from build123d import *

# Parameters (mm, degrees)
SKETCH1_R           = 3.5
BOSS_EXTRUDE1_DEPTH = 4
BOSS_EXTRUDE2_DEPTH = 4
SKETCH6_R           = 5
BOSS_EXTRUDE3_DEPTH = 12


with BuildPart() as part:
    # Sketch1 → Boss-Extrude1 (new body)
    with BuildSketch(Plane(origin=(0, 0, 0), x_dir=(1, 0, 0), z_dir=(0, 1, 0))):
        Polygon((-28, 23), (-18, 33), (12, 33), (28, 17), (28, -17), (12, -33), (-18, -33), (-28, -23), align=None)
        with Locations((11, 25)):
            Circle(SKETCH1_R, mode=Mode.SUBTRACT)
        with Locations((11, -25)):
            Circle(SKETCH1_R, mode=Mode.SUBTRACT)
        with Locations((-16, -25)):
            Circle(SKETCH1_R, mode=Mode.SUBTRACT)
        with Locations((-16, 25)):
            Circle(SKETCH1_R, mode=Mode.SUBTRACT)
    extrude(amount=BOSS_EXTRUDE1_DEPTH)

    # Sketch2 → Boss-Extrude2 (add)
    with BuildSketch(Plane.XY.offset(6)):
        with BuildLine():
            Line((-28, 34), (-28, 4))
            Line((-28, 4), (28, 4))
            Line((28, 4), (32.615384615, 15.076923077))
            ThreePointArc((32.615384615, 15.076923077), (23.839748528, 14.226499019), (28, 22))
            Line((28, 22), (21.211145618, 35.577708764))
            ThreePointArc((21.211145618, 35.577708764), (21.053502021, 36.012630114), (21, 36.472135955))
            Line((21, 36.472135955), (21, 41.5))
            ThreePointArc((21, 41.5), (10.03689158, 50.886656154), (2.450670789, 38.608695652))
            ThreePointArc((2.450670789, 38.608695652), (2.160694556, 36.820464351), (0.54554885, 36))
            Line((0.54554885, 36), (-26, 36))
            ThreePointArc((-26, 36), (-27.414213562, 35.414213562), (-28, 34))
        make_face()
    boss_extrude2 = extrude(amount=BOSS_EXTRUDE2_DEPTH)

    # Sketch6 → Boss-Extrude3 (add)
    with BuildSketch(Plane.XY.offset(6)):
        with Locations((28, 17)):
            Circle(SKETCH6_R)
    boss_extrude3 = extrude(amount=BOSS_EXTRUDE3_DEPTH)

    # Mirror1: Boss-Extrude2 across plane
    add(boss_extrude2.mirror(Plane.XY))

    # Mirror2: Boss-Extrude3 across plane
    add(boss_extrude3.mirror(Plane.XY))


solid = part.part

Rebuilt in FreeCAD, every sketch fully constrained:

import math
import FreeCAD as App
import Part
import Sketcher


def add_polygon(sketch, points):
    """Adds a closed chain of lines whose ends are joined by coincident constraints."""
    first, n = sketch.GeometryCount, len(points)
    for a, b in zip(points, points[1:] + points[:1]):
        sketch.addGeometry(Part.LineSegment(App.Vector(*a, 0), App.Vector(*b, 0)), False)
    for i in range(n):
        sketch.addConstraint(Sketcher.Constraint("Coincident", first + i, 2, first + (i + 1) % n, 1))

doc = App.newDocument("Part")
params = doc.addObject("Spreadsheet::Sheet", "Params")
for row, (alias, value) in enumerate([
    ("sketch1_diameter", "7 mm"),
    ("sketch1_width", "30 mm"),
    ("sketch1_height", "46 mm"),
    ("sketch1_height2", "34 mm"),
    ("pad1_length", "4 mm"),
    ("sketch2_radius", "5 mm"),
    ("sketch2_radius2", "2 mm"),
    ("sketch2_radius3", "9.5 mm"),
    ("sketch2_width", "56 mm"),
    ("sketch2_height", "30 mm"),
    ("pad2_length", "4 mm"),
    ("sketch3_diameter", "10 mm"),
    ("pad3_length", "12 mm"),
], start=1):
    params.set(f"A{row}", alias)
    params.set(f"B{row}", "=" + value)
    params.setAlias(f"B{row}", alias)

body = doc.addObject("PartDesign::Body", "Body")

# Sketch on XZ plane
sketch1 = body.newObject("Sketcher::SketchObject", "Sketch")
sketch1.AttachmentSupport = (doc.getObject("XZ_Plane"), [""])
sketch1.MapMode = "FlatFace"
add_polygon(sketch1, [(-18, -33), (-28, -23), (-28, 23), (-18, 33), (12, 33), (28, 17), (28, -17), (12, -33)])  # lines 0-7
sketch1.addGeometry(Part.Circle(App.Vector(11, 25, 0), App.Vector(0, 0, 1), 3.5), False)  # 8
sketch1.addGeometry(Part.Circle(App.Vector(-16, 25, 0), App.Vector(0, 0, 1), 3.5), False)  # 9
sketch1.addGeometry(Part.Circle(App.Vector(11, -25, 0), App.Vector(0, 0, 1), 3.5), False)  # 10
sketch1.addGeometry(Part.Circle(App.Vector(-16, -25, 0), App.Vector(0, 0, 1), 3.5), False)  # 11
sketch1.addConstraint(Sketcher.Constraint("Vertical", 1))
sketch1.addConstraint(Sketcher.Constraint("Horizontal", 3))
sketch1.addConstraint(Sketcher.Constraint("Vertical", 5))
sketch1.addConstraint(Sketcher.Constraint("Horizontal", 7))
sketch1.addConstraint(Sketcher.Constraint("Equal", 8, 9))
sketch1.addConstraint(Sketcher.Constraint("Equal", 9, 10))
sketch1.addConstraint(Sketcher.Constraint("Equal", 10, 11))
sketch1.addConstraint(Sketcher.Constraint("Symmetric", 8, 3, 10, 3, -1))
sketch1.addConstraint(Sketcher.Constraint("Symmetric", 9, 3, 11, 3, -1))
sketch1.addConstraint(Sketcher.Constraint("Symmetric", 3, 2, 6, 2, -1))
sketch1.addConstraint(Sketcher.Constraint("Perpendicular", 0, 2))
sketch1.addConstraint(Sketcher.Constraint("Perpendicular", 2, 4))
sketch1.addConstraint(Sketcher.Constraint("Perpendicular", 4, 6))
sketch1.addConstraint(Sketcher.Constraint("Horizontal", 8, 3, 9, 3))
sketch1.addConstraint(Sketcher.Constraint("Vertical", 2, 2, 7, 2))
sketch1.addConstraint(Sketcher.Constraint("Equal", 0, 2))
sketch1.addConstraint(Sketcher.Constraint("Diameter", 8, 7.0))
sketch1.addConstraint(Sketcher.Constraint("DistanceX", 3, 1, 3, 2, 30.0))
sketch1.addConstraint(Sketcher.Constraint("DistanceY", 1, 1, 1, 2, 46.0))
sketch1.addConstraint(Sketcher.Constraint("DistanceY", 5, 2, 5, 1, 34.0))
sketch1.addConstraint(Sketcher.Constraint("DistanceX", -1, 1, 8, 3, 11.0))
sketch1.addConstraint(Sketcher.Constraint("DistanceY", -1, 1, 8, 3, 25.0))
sketch1.addConstraint(Sketcher.Constraint("DistanceX", 9, 3, -1, 1, 16.0))
sketch1.addConstraint(Sketcher.Constraint("DistanceX", 0, 2, -1, 1, 28.0))
sketch1.addConstraint(Sketcher.Constraint("DistanceX", 2, 2, -1, 1, 18.0))
sketch1.setExpression("Constraints[24]", "Params.sketch1_diameter")
sketch1.setExpression("Constraints[25]", "Params.sketch1_width")
sketch1.setExpression("Constraints[26]", "Params.sketch1_height")
sketch1.setExpression("Constraints[27]", "Params.sketch1_height2")
pad1 = body.newObject("PartDesign::Pad", "Pad")
pad1.Profile = sketch1
pad1.setExpression("Length", "Params.pad1_length")
pad1.Reversed = True

# Sketch on XY plane
sketch2 = body.newObject("Sketcher::SketchObject", "Sketch001")
sketch2.AttachmentSupport = (doc.getObject("XY_Plane"), [""])
sketch2.MapMode = "FlatFace"
sketch2.AttachmentOffset = App.Placement(App.Vector(0, 0, 6), App.Rotation())
sketch2.addGeometry(Part.LineSegment(App.Vector(-28, 34, 0), App.Vector(-28, 4, 0)), False)
sketch2.addGeometry(Part.LineSegment(App.Vector(-28, 4, 0), App.Vector(28, 4, 0)), False)
sketch2.addGeometry(Part.LineSegment(App.Vector(28, 4, 0), App.Vector(32.615385, 15.076923, 0)), False)
sketch2.addGeometry(Part.ArcOfCircle(Part.Circle(App.Vector(28, 17, 0), App.Vector(0, 0, 1), 5), math.radians(90), math.radians(337.380135)), False)
sketch2.addGeometry(Part.LineSegment(App.Vector(28, 22, 0), App.Vector(21.211146, 35.577709, 0)), False)
sketch2.addGeometry(Part.ArcOfCircle(Part.Circle(App.Vector(23, 36.472136, 0), App.Vector(0, 0, 1), 2), math.radians(180), math.radians(206.565051)), False)
sketch2.addGeometry(Part.LineSegment(App.Vector(21, 36.472136, 0), App.Vector(21, 41.5, 0)), False)
sketch2.addGeometry(Part.ArcOfCircle(Part.Circle(App.Vector(11.5, 41.5, 0), App.Vector(0, 0, 1), 9.5), math.radians(0), math.radians(197.718932)), False)
sketch2.addGeometry(Part.ArcOfCircle(Part.Circle(App.Vector(0.545549, 38, 0), App.Vector(0, 0, 1), 2), math.radians(-90), math.radians(17.718932)), False)
sketch2.addGeometry(Part.LineSegment(App.Vector(0.545549, 36, 0), App.Vector(-26, 36, 0)), False)
sketch2.addGeometry(Part.ArcOfCircle(Part.Circle(App.Vector(-26, 34, 0), App.Vector(0, 0, 1), 2), math.radians(90), math.radians(180)), False)
sketch2.addConstraint(Sketcher.Constraint("Coincident", 0, 2, 1, 1))
sketch2.addConstraint(Sketcher.Constraint("Coincident", 1, 2, 2, 1))
sketch2.addConstraint(Sketcher.Constraint("Tangent", 2, 2, 3, 2))
sketch2.addConstraint(Sketcher.Constraint("Coincident", 3, 1, 4, 1))
sketch2.addConstraint(Sketcher.Constraint("Tangent", 4, 2, 5, 2))
sketch2.addConstraint(Sketcher.Constraint("Tangent", 5, 1, 6, 1))
sketch2.addConstraint(Sketcher.Constraint("Tangent", 6, 2, 7, 1))
sketch2.addConstraint(Sketcher.Constraint("Tangent", 7, 2, 8, 2))
sketch2.addConstraint(Sketcher.Constraint("Tangent", 8, 1, 9, 1))
sketch2.addConstraint(Sketcher.Constraint("Tangent", 9, 2, 10, 1))
sketch2.addConstraint(Sketcher.Constraint("Tangent", 10, 2, 0, 1))
sketch2.addConstraint(Sketcher.Constraint("Vertical", 0))
sketch2.addConstraint(Sketcher.Constraint("Horizontal", 1))
sketch2.addConstraint(Sketcher.Constraint("Vertical", 6))
sketch2.addConstraint(Sketcher.Constraint("Horizontal", 9))
sketch2.addConstraint(Sketcher.Constraint("Equal", 5, 8))
sketch2.addConstraint(Sketcher.Constraint("Equal", 8, 10))
sketch2.addConstraint(Sketcher.Constraint("Vertical", 3, 3, 1, 2))
sketch2.addConstraint(Sketcher.Constraint("Vertical", 1, 2, 3, 1))
sketch2.addConstraint(Sketcher.Constraint("Radius", 3, 5.0))
sketch2.addConstraint(Sketcher.Constraint("Radius", 5, 2.0))
sketch2.addConstraint(Sketcher.Constraint("Radius", 7, 9.5))
sketch2.addConstraint(Sketcher.Constraint("DistanceX", 1, 1, 1, 2, 56.0))
sketch2.addConstraint(Sketcher.Constraint("DistanceY", 0, 2, 0, 1, 30.0))
sketch2.addConstraint(Sketcher.Constraint("Distance", 2, 12.0))
sketch2.addConstraint(Sketcher.Constraint("DistanceX", -1, 1, 3, 3, 28.0))
sketch2.addConstraint(Sketcher.Constraint("DistanceY", -1, 1, 3, 3, 17.0))
sketch2.addConstraint(Sketcher.Constraint("DistanceX", -1, 1, 5, 3, 23.0))
sketch2.addConstraint(Sketcher.Constraint("DistanceY", -1, 1, 7, 3, 41.5))
sketch2.addConstraint(Sketcher.Constraint("Distance", 4, 15.18034))
sketch2.setExpression("Constraints[19]", "Params.sketch2_radius")
sketch2.setExpression("Constraints[20]", "Params.sketch2_radius2")
sketch2.setExpression("Constraints[21]", "Params.sketch2_radius3")
sketch2.setExpression("Constraints[22]", "Params.sketch2_width")
sketch2.setExpression("Constraints[23]", "Params.sketch2_height")
pad2 = body.newObject("PartDesign::Pad", "Pad001")
pad2.Profile = sketch2
pad2.setExpression("Length", "Params.pad2_length")

# Sketch on XY plane
sketch3 = body.newObject("Sketcher::SketchObject", "Sketch002")
sketch3.AttachmentSupport = (doc.getObject("XY_Plane"), [""])
sketch3.MapMode = "FlatFace"
sketch3.AttachmentOffset = App.Placement(App.Vector(0, 0, 6), App.Rotation())
sketch3.addGeometry(Part.Circle(App.Vector(28, 17, 0), App.Vector(0, 0, 1), 5), False)
sketch3.addConstraint(Sketcher.Constraint("Diameter", 0, 10.0))
sketch3.addConstraint(Sketcher.Constraint("DistanceX", -1, 1, 0, 3, 28.0))
sketch3.addConstraint(Sketcher.Constraint("DistanceY", -1, 1, 0, 3, 17.0))
sketch3.setExpression("Constraints[0]", "Params.sketch3_diameter")
pad3 = body.newObject("PartDesign::Pad", "Pad002")
pad3.Profile = sketch3
pad3.setExpression("Length", "Params.pad3_length")
doc.recompute()

mirrored = body.newObject("PartDesign::Mirrored", "Mirrored")
mirrored.Originals = [pad2]
mirrored.MirrorPlane = (doc.getObject("XY_Plane"), [""])
body.Tip = mirrored
doc.recompute()

mirrored2 = body.newObject("PartDesign::Mirrored", "Mirrored001")
mirrored2.Originals = [pad3]
mirrored2.MirrorPlane = (doc.getObject("XY_Plane"), [""])
body.Tip = mirrored2

doc.recompute()
